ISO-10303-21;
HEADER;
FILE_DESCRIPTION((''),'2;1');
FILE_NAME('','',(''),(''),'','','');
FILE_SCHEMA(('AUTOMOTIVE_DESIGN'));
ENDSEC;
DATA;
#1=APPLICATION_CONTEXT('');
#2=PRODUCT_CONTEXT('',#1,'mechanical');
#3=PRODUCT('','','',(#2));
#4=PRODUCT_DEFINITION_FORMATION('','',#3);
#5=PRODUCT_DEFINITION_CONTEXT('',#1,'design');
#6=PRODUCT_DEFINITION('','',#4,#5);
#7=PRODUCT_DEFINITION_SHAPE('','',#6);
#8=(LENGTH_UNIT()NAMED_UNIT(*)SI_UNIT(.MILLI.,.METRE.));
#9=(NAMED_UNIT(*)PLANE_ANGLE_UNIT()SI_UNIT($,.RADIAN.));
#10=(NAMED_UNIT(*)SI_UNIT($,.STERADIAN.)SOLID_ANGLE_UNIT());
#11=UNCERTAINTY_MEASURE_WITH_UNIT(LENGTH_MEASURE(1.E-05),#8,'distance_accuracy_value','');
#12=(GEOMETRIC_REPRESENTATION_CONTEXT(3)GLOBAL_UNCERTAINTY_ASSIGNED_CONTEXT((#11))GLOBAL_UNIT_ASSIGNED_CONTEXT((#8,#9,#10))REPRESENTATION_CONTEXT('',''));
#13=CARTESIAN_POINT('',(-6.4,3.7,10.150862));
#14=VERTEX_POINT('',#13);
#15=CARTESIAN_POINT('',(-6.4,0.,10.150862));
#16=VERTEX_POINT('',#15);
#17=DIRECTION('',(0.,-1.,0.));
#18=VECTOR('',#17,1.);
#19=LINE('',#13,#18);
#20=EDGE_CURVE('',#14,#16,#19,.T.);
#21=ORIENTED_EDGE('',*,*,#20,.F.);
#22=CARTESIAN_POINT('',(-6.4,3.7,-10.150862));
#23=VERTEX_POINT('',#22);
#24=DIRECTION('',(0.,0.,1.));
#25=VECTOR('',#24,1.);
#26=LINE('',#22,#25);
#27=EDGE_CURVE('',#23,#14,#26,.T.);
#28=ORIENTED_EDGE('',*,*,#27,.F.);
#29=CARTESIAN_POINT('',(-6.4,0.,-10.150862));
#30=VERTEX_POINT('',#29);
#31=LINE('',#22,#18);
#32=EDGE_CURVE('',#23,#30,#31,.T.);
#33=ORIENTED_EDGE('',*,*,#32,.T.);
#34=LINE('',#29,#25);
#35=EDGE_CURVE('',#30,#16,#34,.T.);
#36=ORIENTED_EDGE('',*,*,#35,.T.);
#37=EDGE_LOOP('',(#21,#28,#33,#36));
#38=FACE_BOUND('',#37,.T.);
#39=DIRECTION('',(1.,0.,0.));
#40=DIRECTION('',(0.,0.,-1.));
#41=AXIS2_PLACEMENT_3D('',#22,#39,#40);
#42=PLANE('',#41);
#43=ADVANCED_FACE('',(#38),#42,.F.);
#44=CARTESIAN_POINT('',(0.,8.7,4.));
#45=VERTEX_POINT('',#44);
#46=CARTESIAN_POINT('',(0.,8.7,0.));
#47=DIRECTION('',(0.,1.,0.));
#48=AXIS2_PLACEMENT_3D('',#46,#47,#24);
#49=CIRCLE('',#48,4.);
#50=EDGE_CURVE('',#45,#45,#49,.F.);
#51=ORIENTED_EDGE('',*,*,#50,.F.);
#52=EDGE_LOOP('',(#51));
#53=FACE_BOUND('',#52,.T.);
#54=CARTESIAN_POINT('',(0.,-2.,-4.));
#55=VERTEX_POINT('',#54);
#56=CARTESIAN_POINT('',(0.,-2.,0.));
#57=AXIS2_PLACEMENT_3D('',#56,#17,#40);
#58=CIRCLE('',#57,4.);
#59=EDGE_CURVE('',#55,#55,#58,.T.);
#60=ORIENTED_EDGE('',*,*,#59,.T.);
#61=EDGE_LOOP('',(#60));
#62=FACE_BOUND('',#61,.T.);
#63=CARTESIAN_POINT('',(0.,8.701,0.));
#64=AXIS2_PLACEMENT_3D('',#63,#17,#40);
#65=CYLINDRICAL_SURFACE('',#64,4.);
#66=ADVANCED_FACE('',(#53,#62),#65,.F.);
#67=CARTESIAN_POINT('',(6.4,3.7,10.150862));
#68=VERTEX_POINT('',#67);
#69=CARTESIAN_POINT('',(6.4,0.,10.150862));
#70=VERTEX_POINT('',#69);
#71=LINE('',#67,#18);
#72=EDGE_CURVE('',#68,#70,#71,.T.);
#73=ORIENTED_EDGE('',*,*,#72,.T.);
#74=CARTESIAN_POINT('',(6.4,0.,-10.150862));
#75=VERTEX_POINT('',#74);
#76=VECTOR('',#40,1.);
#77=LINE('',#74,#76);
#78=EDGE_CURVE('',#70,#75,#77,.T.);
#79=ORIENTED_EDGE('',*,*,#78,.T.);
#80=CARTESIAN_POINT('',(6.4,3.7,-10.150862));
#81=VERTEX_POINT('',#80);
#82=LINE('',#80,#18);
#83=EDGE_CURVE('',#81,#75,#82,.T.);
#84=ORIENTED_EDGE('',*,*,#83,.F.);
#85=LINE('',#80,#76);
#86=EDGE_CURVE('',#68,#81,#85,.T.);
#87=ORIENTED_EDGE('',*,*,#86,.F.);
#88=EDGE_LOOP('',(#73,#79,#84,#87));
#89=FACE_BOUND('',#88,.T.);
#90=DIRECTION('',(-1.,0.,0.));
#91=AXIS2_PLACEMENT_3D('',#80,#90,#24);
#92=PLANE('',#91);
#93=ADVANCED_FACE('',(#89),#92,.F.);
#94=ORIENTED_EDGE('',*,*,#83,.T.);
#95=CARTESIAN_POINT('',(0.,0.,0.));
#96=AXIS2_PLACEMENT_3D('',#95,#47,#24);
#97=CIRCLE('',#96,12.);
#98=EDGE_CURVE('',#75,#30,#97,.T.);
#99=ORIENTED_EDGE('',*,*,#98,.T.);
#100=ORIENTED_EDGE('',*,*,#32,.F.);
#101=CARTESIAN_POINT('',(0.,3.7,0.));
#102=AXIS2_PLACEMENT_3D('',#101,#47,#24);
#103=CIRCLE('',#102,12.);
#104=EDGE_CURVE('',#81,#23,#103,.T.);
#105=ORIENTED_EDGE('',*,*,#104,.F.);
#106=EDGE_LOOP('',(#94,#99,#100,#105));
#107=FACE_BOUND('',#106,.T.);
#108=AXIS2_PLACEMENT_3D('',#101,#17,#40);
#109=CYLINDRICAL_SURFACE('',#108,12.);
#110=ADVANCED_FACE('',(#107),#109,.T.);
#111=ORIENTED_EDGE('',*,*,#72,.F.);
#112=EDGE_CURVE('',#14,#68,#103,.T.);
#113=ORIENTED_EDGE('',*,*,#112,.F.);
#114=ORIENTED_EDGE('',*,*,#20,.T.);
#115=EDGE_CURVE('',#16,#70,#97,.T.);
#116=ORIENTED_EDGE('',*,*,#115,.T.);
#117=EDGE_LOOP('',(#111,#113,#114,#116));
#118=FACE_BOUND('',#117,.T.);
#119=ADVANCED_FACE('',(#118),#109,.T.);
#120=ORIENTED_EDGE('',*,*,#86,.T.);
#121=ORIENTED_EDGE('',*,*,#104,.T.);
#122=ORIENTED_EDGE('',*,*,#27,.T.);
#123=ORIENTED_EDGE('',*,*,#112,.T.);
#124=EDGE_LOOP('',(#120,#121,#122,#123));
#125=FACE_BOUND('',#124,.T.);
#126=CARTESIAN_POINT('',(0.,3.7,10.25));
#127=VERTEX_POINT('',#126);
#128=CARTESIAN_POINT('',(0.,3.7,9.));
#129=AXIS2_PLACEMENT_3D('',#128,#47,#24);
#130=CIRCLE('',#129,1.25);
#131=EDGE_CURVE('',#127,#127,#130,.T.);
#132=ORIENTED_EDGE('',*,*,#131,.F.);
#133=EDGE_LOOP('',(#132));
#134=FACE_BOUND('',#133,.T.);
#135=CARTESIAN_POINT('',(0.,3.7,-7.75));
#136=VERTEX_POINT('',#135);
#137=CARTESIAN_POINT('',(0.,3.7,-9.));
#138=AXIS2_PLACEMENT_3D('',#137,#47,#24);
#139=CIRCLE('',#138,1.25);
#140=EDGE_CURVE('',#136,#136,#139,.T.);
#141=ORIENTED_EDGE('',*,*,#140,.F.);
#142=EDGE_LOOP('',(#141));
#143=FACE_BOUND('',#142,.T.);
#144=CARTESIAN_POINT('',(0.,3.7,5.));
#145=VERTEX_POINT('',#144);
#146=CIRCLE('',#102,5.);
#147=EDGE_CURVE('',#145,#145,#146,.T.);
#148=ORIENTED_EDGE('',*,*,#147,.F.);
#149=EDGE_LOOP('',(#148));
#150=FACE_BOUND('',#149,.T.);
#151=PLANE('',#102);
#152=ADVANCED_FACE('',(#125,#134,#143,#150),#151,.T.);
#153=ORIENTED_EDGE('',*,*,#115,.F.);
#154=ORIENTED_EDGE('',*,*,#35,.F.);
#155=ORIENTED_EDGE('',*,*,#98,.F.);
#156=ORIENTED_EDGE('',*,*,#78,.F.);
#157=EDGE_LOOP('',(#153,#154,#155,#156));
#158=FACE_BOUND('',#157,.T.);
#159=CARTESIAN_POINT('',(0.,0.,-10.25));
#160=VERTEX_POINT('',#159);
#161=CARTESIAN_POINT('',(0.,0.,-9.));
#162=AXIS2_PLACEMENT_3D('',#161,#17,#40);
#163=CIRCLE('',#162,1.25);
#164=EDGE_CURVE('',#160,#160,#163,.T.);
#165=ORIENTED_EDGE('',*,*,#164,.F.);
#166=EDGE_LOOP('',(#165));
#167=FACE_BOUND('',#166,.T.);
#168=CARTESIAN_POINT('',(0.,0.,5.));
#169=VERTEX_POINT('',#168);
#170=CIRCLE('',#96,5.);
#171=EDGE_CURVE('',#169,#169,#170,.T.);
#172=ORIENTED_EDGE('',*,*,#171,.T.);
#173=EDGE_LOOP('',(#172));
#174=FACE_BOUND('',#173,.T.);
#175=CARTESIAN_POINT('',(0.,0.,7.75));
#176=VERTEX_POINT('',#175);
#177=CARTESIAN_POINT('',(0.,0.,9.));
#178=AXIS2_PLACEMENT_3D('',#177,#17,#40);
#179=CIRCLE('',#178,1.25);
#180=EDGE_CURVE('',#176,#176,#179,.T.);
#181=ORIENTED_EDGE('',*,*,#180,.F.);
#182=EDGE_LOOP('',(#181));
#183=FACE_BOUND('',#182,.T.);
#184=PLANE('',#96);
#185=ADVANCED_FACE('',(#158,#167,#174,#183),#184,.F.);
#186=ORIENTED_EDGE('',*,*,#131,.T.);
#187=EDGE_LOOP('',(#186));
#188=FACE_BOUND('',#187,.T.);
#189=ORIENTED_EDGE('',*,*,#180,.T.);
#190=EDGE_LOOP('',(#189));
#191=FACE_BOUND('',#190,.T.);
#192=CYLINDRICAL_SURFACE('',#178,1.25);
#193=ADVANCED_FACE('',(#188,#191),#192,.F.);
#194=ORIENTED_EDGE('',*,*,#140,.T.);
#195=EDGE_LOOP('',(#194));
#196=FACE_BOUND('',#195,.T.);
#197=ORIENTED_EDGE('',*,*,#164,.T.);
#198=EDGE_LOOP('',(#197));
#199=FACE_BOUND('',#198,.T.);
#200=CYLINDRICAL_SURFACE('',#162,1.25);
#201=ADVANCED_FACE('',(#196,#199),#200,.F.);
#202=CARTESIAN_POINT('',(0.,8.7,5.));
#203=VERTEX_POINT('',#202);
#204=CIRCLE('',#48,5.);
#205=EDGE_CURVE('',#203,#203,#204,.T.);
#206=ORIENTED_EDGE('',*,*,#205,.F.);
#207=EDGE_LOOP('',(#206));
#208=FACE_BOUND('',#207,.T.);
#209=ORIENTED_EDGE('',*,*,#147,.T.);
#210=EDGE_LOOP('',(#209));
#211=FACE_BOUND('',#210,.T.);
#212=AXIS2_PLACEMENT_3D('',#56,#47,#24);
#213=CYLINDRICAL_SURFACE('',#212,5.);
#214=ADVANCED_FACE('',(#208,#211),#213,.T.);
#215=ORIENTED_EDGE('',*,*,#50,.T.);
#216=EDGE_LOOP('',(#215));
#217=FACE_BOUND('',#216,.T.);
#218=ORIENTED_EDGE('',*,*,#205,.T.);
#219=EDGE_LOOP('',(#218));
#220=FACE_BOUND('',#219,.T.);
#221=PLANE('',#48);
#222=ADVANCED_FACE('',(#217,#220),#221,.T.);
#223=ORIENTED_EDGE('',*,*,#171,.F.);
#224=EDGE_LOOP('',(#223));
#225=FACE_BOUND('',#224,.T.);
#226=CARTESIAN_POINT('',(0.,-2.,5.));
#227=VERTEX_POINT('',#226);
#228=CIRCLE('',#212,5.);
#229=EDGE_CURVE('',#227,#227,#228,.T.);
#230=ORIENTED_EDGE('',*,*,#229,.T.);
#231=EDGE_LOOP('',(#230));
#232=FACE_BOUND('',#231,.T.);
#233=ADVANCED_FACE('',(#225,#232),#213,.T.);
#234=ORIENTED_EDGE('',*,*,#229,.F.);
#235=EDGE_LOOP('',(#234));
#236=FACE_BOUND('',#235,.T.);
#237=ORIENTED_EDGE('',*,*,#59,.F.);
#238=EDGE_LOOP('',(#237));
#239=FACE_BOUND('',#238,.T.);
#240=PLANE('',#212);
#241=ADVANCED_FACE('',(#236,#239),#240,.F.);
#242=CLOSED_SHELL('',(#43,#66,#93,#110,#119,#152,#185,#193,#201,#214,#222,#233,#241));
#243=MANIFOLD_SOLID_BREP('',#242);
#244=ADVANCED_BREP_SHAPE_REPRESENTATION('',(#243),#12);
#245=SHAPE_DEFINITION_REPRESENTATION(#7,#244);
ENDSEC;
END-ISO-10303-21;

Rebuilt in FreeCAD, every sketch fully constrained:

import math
import FreeCAD as App
import Part
import Sketcher
Q = App.Units.Quantity

doc = App.newDocument("Part")
body = doc.addObject("PartDesign::Body", "Body")

# Sketch on XZ plane
sketch1 = body.newObject("Sketcher::SketchObject", "Sketch")
sketch1.AttachmentSupport = (doc.getObject("XZ_Plane"), [""])
sketch1.MapMode = "FlatFace"
sketch1.addGeometry([
    Part.LineSegment(App.Vector(-6, -10, 0), App.Vector(-6, 10, 0)),
    Part.ArcOfCircle(Part.Circle(App.Vector(0, 0, 0), App.Vector(0, 0, 1), 12), math.radians(58), math.radians(122)),
    Part.LineSegment(App.Vector(6, 10, 0), App.Vector(6, -10, 0)),
    Part.ArcOfCircle(Part.Circle(App.Vector(0, 0, 0), App.Vector(0, 0, 1), 12), math.radians(-122), math.radians(-58)),
], False)
sketch1.addConstraint([
    Sketcher.Constraint("Coincident", 0, 2, 1, 2),
    Sketcher.Constraint("Coincident", 1, 1, 2, 1),
    Sketcher.Constraint("Coincident", 2, 2, 3, 2),
    Sketcher.Constraint("Coincident", 3, 1, 0, 1),
    Sketcher.Constraint("Vertical", 0),
    Sketcher.Constraint("Vertical", 2),
    Sketcher.Constraint("Coincident", 1, 3, -1, 1),
    Sketcher.Constraint("Coincident", 3, 3, -1, 1),
    Sketcher.Constraint("Equal", 1, 3),
    Sketcher.Constraint("Horizontal", 0, 2, 1, 1),
    Sketcher.Constraint("Radius", 1, Q("12 mm")),
    Sketcher.Constraint("DistanceX", 0, 2, -1, 1, Q("6.4 mm")),
])
pad1 = body.newObject("PartDesign::Pad", "Pad")
pad1.Profile = sketch1
pad1.Length = 3.7
pad1.Reversed = True

# Sketch on XZ plane
sketch2 = body.newObject("Sketcher::SketchObject", "Sketch001")
sketch2.AttachmentSupport = (doc.getObject("XZ_Plane"), [""])
sketch2.MapMode = "FlatFace"
sketch2.AttachmentOffset = App.Placement(App.Vector(0, 0, -3.7), App.Rotation())
sketch2.addGeometry(Part.Circle(App.Vector(0, 0, 0), App.Vector(0, 0, 1), 5), False)
sketch2.addConstraint([
    Sketcher.Constraint("Coincident", 0, 3, -1, 1),
    Sketcher.Constraint("Diameter", 0, Q("10 mm")),
])
pad2 = body.newObject("PartDesign::Pad", "Pad001")
pad2.Profile = sketch2
pad2.Type = "TwoLengths"
pad2.Length = 5
pad2.Length2 = 5.7
pad2.Reversed = True

# Sketch on XZ plane
sketch3 = body.newObject("Sketcher::SketchObject", "Sketch002")
sketch3.AttachmentSupport = (doc.getObject("XZ_Plane"), [""])
sketch3.MapMode = "FlatFace"
sketch3.addGeometry([
    Part.Circle(App.Vector(0, 9, 0), App.Vector(0, 0, 1), 1.2),
    Part.Circle(App.Vector(0, -9, 0), App.Vector(0, 0, 1), 1.2),
], False)
sketch3.addConstraint([
    Sketcher.Constraint("Equal", 0, 1),
    Sketcher.Constraint("Symmetric", 0, 3, 1, 3, -1, 1),
    Sketcher.Constraint("PointOnObject", 0, 3, -2),
    Sketcher.Constraint("Diameter", 0, Q("2.5 mm")),
    Sketcher.Constraint("DistanceY", -1, 1, 0, 3, Q("9 mm")),
])
doc.recompute()
hole = body.newObject("PartDesign::Hole", "Hole")
hole.Profile = sketch3
hole.ThreadType = "None"
hole.Diameter = 2.5
hole.DepthType = "Dimension"
hole.Depth = 3.7
hole.DrillPoint = "Flat"

# Sketch on XZ plane
sketch4 = body.newObject("Sketcher::SketchObject", "Sketch003")
sketch4.AttachmentSupport = (doc.getObject("XZ_Plane"), [""])
sketch4.MapMode = "FlatFace"
sketch4.AttachmentOffset = App.Placement(App.Vector(0, 0, 2), App.Rotation())
sketch4.addGeometry(Part.Circle(App.Vector(0, 0, 0), App.Vector(0, 0, 1), 4), False)
sketch4.addConstraint([
    Sketcher.Constraint("Coincident", 0, 3, -1, 1),
    Sketcher.Constraint("Diameter", 0, Q("8 mm")),
])
pocket1 = body.newObject("PartDesign::Pocket", "Pocket")
pocket1.Profile = sketch4
pocket1.Type = "UpToFirst"

doc.recompute()
